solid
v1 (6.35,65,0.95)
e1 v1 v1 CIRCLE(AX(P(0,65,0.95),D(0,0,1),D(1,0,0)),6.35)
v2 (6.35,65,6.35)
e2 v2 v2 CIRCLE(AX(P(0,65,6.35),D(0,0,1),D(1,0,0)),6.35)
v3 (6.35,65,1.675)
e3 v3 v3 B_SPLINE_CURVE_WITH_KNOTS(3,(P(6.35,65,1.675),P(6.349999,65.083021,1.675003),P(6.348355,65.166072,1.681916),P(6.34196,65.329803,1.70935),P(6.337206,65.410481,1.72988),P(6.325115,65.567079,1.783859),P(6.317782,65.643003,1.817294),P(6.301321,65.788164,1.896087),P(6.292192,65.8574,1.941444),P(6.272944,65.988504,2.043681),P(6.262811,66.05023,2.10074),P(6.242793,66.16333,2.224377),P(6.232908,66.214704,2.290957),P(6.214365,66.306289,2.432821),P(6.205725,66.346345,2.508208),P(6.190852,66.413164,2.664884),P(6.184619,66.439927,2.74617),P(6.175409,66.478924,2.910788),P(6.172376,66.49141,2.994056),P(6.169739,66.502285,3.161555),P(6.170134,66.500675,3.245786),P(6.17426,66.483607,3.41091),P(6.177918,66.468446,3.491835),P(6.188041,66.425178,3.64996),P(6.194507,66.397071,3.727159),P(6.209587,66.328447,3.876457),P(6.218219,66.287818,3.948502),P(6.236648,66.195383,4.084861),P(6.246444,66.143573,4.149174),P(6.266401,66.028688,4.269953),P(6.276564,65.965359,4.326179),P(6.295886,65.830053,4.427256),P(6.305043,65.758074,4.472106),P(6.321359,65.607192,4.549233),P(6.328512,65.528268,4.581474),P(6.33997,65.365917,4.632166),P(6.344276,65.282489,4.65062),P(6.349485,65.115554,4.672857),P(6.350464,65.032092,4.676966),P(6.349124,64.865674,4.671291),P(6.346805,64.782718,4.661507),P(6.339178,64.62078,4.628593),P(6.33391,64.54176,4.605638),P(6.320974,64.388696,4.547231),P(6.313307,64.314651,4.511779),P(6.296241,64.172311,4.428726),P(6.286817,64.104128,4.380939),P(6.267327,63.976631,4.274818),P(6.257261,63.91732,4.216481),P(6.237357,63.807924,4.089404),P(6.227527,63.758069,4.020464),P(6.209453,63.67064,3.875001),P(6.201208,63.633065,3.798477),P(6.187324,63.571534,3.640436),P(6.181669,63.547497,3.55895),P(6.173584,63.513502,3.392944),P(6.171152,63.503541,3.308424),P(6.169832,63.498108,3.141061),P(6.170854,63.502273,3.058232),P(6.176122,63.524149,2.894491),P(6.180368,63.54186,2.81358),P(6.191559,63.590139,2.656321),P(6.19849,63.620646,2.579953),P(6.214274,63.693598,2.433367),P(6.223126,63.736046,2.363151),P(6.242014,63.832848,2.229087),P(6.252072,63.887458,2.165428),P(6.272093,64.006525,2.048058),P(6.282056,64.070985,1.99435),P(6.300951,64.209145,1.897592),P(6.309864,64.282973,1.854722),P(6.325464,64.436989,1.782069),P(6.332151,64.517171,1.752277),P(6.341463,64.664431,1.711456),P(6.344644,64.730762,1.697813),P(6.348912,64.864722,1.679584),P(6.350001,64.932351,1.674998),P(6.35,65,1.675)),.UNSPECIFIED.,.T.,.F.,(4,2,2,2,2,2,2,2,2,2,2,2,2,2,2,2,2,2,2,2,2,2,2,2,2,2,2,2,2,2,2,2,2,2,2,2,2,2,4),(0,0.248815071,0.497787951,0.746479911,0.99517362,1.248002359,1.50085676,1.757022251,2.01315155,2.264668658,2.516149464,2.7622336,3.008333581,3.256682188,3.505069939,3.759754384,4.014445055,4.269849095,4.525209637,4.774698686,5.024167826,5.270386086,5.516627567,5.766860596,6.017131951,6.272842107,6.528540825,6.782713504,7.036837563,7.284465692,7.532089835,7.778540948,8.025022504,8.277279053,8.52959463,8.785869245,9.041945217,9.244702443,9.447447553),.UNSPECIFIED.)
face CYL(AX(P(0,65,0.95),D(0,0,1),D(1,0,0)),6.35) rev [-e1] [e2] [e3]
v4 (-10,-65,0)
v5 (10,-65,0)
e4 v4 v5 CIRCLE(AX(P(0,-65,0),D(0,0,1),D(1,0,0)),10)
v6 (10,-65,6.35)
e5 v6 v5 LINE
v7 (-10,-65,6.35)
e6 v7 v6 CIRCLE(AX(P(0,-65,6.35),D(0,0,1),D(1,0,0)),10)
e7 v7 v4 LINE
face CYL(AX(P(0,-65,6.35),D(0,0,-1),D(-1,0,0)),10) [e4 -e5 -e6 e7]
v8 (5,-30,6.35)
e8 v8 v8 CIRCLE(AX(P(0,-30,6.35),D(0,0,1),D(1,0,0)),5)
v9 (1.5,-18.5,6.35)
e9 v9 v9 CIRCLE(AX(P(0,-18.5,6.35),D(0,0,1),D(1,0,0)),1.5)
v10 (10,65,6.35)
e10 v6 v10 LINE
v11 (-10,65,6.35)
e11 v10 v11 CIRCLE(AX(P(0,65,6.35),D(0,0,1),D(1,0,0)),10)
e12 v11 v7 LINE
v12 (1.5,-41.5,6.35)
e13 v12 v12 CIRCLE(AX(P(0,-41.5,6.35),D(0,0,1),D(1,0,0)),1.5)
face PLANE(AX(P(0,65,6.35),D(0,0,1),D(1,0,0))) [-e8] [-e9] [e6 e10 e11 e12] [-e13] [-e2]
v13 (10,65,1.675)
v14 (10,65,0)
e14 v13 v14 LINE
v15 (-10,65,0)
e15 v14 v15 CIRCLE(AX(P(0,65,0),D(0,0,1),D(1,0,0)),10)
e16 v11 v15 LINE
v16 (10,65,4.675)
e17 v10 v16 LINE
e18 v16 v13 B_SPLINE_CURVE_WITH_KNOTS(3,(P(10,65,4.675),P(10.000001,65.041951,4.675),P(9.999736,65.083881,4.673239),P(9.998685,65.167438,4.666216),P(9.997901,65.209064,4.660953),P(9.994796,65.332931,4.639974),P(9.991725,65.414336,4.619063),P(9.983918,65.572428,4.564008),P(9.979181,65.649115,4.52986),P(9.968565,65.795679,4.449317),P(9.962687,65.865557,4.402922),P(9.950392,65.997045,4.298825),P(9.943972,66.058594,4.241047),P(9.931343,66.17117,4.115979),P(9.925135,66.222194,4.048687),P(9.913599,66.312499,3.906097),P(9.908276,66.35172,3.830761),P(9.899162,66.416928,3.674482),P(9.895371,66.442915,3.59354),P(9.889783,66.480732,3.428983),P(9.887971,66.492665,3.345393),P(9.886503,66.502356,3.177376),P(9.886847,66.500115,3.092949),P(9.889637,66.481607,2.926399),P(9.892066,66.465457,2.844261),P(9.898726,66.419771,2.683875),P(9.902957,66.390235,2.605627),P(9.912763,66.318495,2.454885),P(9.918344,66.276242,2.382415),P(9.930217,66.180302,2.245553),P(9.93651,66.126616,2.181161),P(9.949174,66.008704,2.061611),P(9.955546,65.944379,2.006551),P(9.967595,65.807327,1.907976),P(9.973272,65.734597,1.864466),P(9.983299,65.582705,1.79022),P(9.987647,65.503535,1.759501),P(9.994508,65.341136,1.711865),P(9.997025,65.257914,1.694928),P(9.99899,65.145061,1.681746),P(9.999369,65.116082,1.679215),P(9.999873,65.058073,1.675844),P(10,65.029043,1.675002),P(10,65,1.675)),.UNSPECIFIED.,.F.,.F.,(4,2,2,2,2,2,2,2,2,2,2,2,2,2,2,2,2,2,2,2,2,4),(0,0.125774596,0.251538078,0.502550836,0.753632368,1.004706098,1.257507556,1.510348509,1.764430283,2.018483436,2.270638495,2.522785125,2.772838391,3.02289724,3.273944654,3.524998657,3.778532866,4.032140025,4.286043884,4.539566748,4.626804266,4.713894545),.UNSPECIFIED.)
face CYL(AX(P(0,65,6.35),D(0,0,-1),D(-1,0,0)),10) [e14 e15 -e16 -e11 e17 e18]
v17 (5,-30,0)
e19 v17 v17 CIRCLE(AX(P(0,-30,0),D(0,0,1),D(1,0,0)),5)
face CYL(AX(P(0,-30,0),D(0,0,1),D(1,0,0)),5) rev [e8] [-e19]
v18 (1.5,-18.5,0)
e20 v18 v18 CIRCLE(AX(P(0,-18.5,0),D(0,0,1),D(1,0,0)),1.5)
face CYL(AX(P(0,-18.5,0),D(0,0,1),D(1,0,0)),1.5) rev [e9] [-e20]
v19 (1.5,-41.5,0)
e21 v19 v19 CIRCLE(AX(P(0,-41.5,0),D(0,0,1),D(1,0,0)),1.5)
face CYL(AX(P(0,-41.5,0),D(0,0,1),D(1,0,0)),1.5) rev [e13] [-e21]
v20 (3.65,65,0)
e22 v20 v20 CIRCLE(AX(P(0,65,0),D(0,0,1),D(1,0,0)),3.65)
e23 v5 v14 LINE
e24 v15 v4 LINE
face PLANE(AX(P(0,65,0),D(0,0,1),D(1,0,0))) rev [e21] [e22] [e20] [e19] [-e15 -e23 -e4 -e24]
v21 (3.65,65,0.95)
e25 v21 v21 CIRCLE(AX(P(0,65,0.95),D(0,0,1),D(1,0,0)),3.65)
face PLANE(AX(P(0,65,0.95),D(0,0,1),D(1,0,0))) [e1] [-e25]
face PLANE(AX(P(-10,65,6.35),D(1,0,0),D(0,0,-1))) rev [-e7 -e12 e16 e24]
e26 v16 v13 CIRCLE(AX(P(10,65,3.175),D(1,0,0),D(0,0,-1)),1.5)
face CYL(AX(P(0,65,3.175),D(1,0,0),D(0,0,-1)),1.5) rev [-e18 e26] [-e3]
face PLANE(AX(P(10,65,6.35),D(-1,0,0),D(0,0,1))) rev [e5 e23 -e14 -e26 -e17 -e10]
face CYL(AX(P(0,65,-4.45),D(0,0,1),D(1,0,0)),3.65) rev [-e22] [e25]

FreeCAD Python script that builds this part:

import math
import FreeCAD as App
import Part
import Sketcher

doc = App.newDocument("Part")
params = doc.addObject("Spreadsheet::Sheet", "Params")
for row, (alias, value) in enumerate([
    ("sketch1_radius", "10 mm"),
    ("sketch1_height", "130 mm"),
    ("pad1_length", "6.35 mm"),
    ("sketch2_diameter", "12.7 mm"),
    ("pocket1_length", "5.4 mm"),
    ("sketch3_diameter", "7.3 mm"),
    ("pocket2_length", "5.4 mm"),
    ("sketch4_diameter", "10 mm"),
    ("sketch4_diameter2", "3 mm"),
    ("sketch5_diameter", "3 mm"),
    ("pocket4_length", "10 mm"),
], start=1):
    params.set(f"A{row}", alias)
    params.set(f"B{row}", "=" + value)
    params.setAlias(f"B{row}", alias)

body = doc.addObject("PartDesign::Body", "Body")

sketch1 = doc.addObject("Sketcher::SketchObject", "Sketch")
body.addObject(sketch1)
sketch1.AttachmentSupport = (doc.XY_Plane, [""])
sketch1.MapMode = "FlatFace"
sketch1.addGeometry([
    Part.LineSegment(App.Vector(10, -65, 0), App.Vector(10, 65, 0)),
    Part.ArcOfCircle(Part.Circle(App.Vector(0, 65, 0), App.Vector(0, 0, 1), 10), math.radians(0), math.radians(180)),
    Part.LineSegment(App.Vector(-10, 65, 0), App.Vector(-10, -65, 0)),
    Part.ArcOfCircle(Part.Circle(App.Vector(0, -65, 0), App.Vector(0, 0, 1), 10), math.radians(180), math.radians(360)),
], False)
sketch1.addConstraint([
    Sketcher.Constraint("Tangent", 0, 2, 1, 1),
    Sketcher.Constraint("Tangent", 1, 2, 2, 1),
    Sketcher.Constraint("Tangent", 2, 2, 3, 1),
    Sketcher.Constraint("Tangent", 3, 2, 0, 1),
    Sketcher.Constraint("Vertical", 0),
    Sketcher.Constraint("Vertical", 2),
    Sketcher.Constraint("Symmetric", 1, 3, 3, 3, -1, 1),
    Sketcher.Constraint("Radius", 1, 10.0),
    Sketcher.Constraint("DistanceY", 0, 1, 0, 2, 130.0),
])
sketch1.setExpression("Constraints[7]", "Params.sketch1_radius")
sketch1.setExpression("Constraints[8]", "Params.sketch1_height")
pad1 = doc.addObject("PartDesign::Pad", "Pad")
body.addObject(pad1)
pad1.Profile = sketch1
pad1.setExpression("Length", "Params.pad1_length")

sketch2 = doc.addObject("Sketcher::SketchObject", "Sketch001")
body.addObject(sketch2)
sketch2.AttachmentSupport = (doc.XY_Plane, [""])
sketch2.MapMode = "FlatFace"
sketch2.AttachmentOffset = App.Placement(App.Vector(0, 0, 6.35), App.Rotation())
sketch2.addGeometry(Part.Circle(App.Vector(0, 65, 0), App.Vector(0, 0, 1), 6), False)
sketch2.addConstraint([
    Sketcher.Constraint("PointOnObject", 0, 3, -2),
    Sketcher.Constraint("Diameter", 0, 12.7),
    Sketcher.Constraint("DistanceY", -1, 1, 0, 3, 65.0),
])
sketch2.setExpression("Constraints[1]", "Params.sketch2_diameter")
pocket1 = doc.addObject("PartDesign::Pocket", "Pocket")
body.addObject(pocket1)
pocket1.Profile = sketch2
pocket1.setExpression("Length", "Params.pocket1_length")

sketch3 = doc.addObject("Sketcher::SketchObject", "Sketch002")
body.addObject(sketch3)
sketch3.AttachmentSupport = (doc.XY_Plane, [""])
sketch3.MapMode = "FlatFace"
sketch3.AttachmentOffset = App.Placement(App.Vector(0, 0, 0.95), App.Rotation())
sketch3.addGeometry(Part.Circle(App.Vector(0, 65, 0), App.Vector(0, 0, 1), 3.6), False)
sketch3.addConstraint([
    Sketcher.Constraint("PointOnObject", 0, 3, -2),
    Sketcher.Constraint("Diameter", 0, 7.3),
    Sketcher.Constraint("DistanceY", -1, 1, 0, 3, 65.0),
])
sketch3.setExpression("Constraints[1]", "Params.sketch3_diameter")
pocket2 = doc.addObject("PartDesign::Pocket", "Pocket001")
body.addObject(pocket2)
pocket2.Profile = sketch3
pocket2.setExpression("Length", "Params.pocket2_length")

sketch4 = doc.addObject("Sketcher::SketchObject", "Sketch003")
body.addObject(sketch4)
sketch4.AttachmentSupport = (doc.XY_Plane, [""])
sketch4.MapMode = "FlatFace"
sketch4.AttachmentOffset = App.Placement(App.Vector(0, 0, 6.35), App.Rotation())
sketch4.addGeometry([
    Part.Circle(App.Vector(0, -30, 0), App.Vector(0, 0, 1), 5),
    Part.Circle(App.Vector(0, -18.5, 0), App.Vector(0, 0, 1), 1.5),
    Part.Circle(App.Vector(0, -41.5, 0), App.Vector(0, 0, 1), 1.5),
], False)
sketch4.addConstraint([
    Sketcher.Constraint("Equal", 1, 2),
    Sketcher.Constraint("PointOnObject", 0, 3, -2),
    Sketcher.Constraint("PointOnObject", 1, 3, -2),
    Sketcher.Constraint("PointOnObject", 2, 3, -2),
    Sketcher.Constraint("Diameter", 0, 10.0),
    Sketcher.Constraint("Diameter", 1, 3.0),
    Sketcher.Constraint("DistanceY", 0, 3, -1, 1, 30.0),
    Sketcher.Constraint("DistanceY", 2, 3, 1, 3, 23.0),
    Sketcher.Constraint("DistanceY", 1, 3, -1, 1, 18.5),
])
sketch4.setExpression("Constraints[4]", "Params.sketch4_diameter")
sketch4.setExpression("Constraints[5]", "Params.sketch4_diameter2")
pocket3 = doc.addObject("PartDesign::Pocket", "Pocket002")
body.addObject(pocket3)
pocket3.Profile = sketch4
pocket3.Type = "ThroughAll"

sketch5 = doc.addObject("Sketcher::SketchObject", "Sketch004")
body.addObject(sketch5)
sketch5.AttachmentSupport = (doc.YZ_Plane, [""])
sketch5.MapMode = "FlatFace"
sketch5.AttachmentOffset = App.Placement(App.Vector(0, 0, 10), App.Rotation())
sketch5.addGeometry(Part.Circle(App.Vector(65, 3.2, 0), App.Vector(0, 0, 1), 1.5), False)
sketch5.addConstraint([
    Sketcher.Constraint("Diameter", 0, 3.0),
    Sketcher.Constraint("DistanceX", -1, 1, 0, 3, 65.0),
    Sketcher.Constraint("DistanceY", -1, 1, 0, 3, 3.175),
])
sketch5.setExpression("Constraints[0]", "Params.sketch5_diameter")
pocket4 = doc.addObject("PartDesign::Pocket", "Pocket003")
body.addObject(pocket4)
pocket4.Profile = sketch5
pocket4.setExpression("Length", "Params.pocket4_length")

doc.recompute()
